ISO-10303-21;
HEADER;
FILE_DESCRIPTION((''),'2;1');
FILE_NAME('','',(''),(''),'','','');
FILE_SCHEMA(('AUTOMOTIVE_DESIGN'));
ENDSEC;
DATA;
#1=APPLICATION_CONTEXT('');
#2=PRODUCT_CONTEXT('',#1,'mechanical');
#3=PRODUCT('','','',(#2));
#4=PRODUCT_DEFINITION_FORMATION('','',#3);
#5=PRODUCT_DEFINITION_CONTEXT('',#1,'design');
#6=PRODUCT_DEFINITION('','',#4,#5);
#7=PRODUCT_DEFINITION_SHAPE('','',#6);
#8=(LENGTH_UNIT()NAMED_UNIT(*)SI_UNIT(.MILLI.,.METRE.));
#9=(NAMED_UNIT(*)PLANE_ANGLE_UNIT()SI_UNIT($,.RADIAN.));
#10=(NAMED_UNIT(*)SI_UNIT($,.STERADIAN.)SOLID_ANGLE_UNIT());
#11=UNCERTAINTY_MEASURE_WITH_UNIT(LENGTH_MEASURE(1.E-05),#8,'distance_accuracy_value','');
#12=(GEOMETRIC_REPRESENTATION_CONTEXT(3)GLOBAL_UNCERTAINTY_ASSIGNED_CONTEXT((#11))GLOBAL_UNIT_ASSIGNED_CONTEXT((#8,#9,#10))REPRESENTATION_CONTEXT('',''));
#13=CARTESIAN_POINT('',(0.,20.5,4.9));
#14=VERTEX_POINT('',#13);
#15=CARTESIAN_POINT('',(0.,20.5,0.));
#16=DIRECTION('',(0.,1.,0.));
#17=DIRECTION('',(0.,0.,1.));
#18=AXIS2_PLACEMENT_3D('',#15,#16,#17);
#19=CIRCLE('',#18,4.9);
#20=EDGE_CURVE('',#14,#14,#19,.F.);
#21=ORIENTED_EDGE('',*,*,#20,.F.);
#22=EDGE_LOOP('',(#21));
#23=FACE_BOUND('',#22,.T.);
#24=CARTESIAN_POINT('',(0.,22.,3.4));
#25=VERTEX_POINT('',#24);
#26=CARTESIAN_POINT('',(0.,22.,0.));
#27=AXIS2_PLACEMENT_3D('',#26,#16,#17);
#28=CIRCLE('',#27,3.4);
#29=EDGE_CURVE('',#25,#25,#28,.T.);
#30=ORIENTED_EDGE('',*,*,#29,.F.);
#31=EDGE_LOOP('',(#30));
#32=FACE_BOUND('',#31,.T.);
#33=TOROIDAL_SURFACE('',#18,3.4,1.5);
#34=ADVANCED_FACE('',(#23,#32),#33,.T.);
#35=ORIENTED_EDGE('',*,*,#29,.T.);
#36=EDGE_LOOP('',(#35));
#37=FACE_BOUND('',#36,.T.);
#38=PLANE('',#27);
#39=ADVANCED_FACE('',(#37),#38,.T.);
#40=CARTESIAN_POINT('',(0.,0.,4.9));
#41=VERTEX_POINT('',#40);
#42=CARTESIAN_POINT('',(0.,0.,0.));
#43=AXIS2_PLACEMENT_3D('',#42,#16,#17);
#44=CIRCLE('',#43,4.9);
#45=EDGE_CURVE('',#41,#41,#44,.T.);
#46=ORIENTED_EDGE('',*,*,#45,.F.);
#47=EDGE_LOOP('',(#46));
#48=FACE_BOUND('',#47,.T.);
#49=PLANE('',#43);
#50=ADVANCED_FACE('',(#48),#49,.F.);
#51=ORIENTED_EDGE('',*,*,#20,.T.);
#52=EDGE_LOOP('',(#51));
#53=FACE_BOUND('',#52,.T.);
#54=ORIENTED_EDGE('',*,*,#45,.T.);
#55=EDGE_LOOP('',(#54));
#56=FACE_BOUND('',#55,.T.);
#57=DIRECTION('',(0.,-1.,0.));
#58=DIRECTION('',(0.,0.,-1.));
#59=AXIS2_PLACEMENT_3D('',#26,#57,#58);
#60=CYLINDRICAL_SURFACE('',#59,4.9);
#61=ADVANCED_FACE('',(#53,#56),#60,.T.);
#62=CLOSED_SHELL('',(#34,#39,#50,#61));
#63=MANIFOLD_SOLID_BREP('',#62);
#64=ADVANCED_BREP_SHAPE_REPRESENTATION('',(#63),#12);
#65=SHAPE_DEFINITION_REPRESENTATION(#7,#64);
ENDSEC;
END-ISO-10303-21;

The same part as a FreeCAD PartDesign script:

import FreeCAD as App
import Part
import Sketcher
from FreeCAD import Vector
Q = App.Units.Quantity


def edges_at(feature, points):
    """Names of the edges that pass closest to the given points."""
    edges = feature.Shape.Edges
    near = lambda p: min(range(len(edges)), key=lambda i: edges[i].distToShape(Part.Vertex(*p))[0])
    return sorted({f"Edge{near(p) + 1}" for p in points})

doc = App.newDocument("Part")
body = doc.addObject("PartDesign::Body", "Body")

# Sketch on XZ plane
sketch1 = body.newObject("Sketcher::SketchObject", "Sketch")
sketch1.AttachmentSupport = (doc.getObject("XZ_Plane"), [""])
sketch1.MapMode = "FlatFace"
sketch1.addGeometry(Part.Circle(Vector(0, 0, 0), Vector(0, 0, 1), 4.9), False)
sketch1.addConstraint([
    Sketcher.Constraint("Coincident", 0, 3, -1, 1),
    Sketcher.Constraint("Diameter", 0, Q("9.8 mm")),
])
pad1 = body.newObject("PartDesign::Pad", "Pad")
pad1.Profile = sketch1
pad1.Length = 22
pad1.Reversed = True
doc.recompute()

fillet = body.newObject("PartDesign::Fillet", "Fillet")
fillet.Base = (pad1, edges_at(pad1, [(-4.9, 22, 0)]))
fillet.Radius = 1.5

doc.recompute()
